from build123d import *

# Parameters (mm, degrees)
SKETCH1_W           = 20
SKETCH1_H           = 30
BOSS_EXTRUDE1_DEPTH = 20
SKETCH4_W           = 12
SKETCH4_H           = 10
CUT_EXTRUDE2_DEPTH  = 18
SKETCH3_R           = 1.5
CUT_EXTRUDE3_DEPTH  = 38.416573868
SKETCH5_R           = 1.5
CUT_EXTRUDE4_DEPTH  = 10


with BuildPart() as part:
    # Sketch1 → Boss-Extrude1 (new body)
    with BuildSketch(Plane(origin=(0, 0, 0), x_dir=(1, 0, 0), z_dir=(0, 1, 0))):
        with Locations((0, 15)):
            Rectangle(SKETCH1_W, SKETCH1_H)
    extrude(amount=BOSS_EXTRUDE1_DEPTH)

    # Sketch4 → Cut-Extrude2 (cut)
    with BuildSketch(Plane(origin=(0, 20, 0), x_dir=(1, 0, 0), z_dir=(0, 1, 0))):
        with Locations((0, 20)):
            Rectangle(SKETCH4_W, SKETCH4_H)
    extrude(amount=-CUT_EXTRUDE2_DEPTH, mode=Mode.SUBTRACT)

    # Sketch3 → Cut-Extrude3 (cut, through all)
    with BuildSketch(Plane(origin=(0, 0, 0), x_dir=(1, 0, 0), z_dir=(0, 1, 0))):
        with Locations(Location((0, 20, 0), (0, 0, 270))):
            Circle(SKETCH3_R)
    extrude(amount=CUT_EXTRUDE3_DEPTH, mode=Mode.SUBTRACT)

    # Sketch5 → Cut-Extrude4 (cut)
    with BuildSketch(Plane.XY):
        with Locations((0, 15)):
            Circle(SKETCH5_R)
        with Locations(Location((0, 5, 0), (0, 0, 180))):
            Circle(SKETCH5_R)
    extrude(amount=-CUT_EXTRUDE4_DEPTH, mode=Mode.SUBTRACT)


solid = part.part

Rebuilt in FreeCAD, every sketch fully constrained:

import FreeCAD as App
import Part
import Sketcher
Q = App.Units.Quantity

doc = App.newDocument("Part")
body = doc.addObject("PartDesign::Body", "Body")

# Sketch on XZ plane
sketch1 = body.newObject("Sketcher::SketchObject", "Sketch")
sketch1.AttachmentSupport = (doc.getObject("XZ_Plane"), [""])
sketch1.MapMode = "FlatFace"
sketch1.addGeometry(Part.LineSegment(App.Vector(-10, -30, 0), App.Vector(-10, 0, 0)), False)
sketch1.addGeometry(Part.LineSegment(App.Vector(-10, 0, 0), App.Vector(10, 0, 0)), False)
sketch1.addGeometry(Part.LineSegment(App.Vector(10, 0, 0), App.Vector(10, -30, 0)), False)
sketch1.addGeometry(Part.LineSegment(App.Vector(10, -30, 0), App.Vector(-10, -30, 0)), False)
sketch1.addConstraint(Sketcher.Constraint("Coincident", 0, 2, 1, 1))
sketch1.addConstraint(Sketcher.Constraint("Coincident", 1, 2, 2, 1))
sketch1.addConstraint(Sketcher.Constraint("Coincident", 2, 2, 3, 1))
sketch1.addConstraint(Sketcher.Constraint("Coincident", 3, 2, 0, 1))
sketch1.addConstraint(Sketcher.Constraint("Vertical", 0))
sketch1.addConstraint(Sketcher.Constraint("Horizontal", 1))
sketch1.addConstraint(Sketcher.Constraint("Vertical", 2))
sketch1.addConstraint(Sketcher.Constraint("Horizontal", 3))
sketch1.addConstraint(Sketcher.Constraint("Symmetric", 0, 2, 1, 2, -1, 1))
sketch1.addConstraint(Sketcher.Constraint("DistanceX", 1, 1, 1, 2, Q("20 mm")))
sketch1.addConstraint(Sketcher.Constraint("DistanceY", 0, 1, 0, 2, Q("30 mm")))
pad1 = body.newObject("PartDesign::Pad", "Pad")
pad1.Profile = sketch1
pad1.Length = 20
pad1.Reversed = True

# Sketch on XZ plane
sketch2 = body.newObject("Sketcher::SketchObject", "Sketch001")
sketch2.AttachmentSupport = (doc.getObject("XZ_Plane"), [""])
sketch2.MapMode = "FlatFace"
sketch2.AttachmentOffset = App.Placement(App.Vector(0, 0, -20), App.Rotation())
sketch2.addGeometry(Part.LineSegment(App.Vector(-6, -25, 0), App.Vector(-6, -15, 0)), False)
sketch2.addGeometry(Part.LineSegment(App.Vector(-6, -15, 0), App.Vector(6, -15, 0)), False)
sketch2.addGeometry(Part.LineSegment(App.Vector(6, -15, 0), App.Vector(6, -25, 0)), False)
sketch2.addGeometry(Part.LineSegment(App.Vector(6, -25, 0), App.Vector(-6, -25, 0)), False)
sketch2.addConstraint(Sketcher.Constraint("Coincident", 0, 2, 1, 1))
sketch2.addConstraint(Sketcher.Constraint("Coincident", 1, 2, 2, 1))
sketch2.addConstraint(Sketcher.Constraint("Coincident", 2, 2, 3, 1))
sketch2.addConstraint(Sketcher.Constraint("Coincident", 3, 2, 0, 1))
sketch2.addConstraint(Sketcher.Constraint("Vertical", 0))
sketch2.addConstraint(Sketcher.Constraint("Horizontal", 1))
sketch2.addConstraint(Sketcher.Constraint("Vertical", 2))
sketch2.addConstraint(Sketcher.Constraint("Horizontal", 3))
sketch2.addConstraint(Sketcher.Constraint("DistanceX", 1, 1, 1, 2, Q("12 mm")))
sketch2.addConstraint(Sketcher.Constraint("DistanceY", 0, 1, 0, 2, Q("10 mm")))
sketch2.addConstraint(Sketcher.Constraint("DistanceX", 0, 2, -1, 1, Q("6 mm")))
sketch2.addConstraint(Sketcher.Constraint("DistanceY", 0, 2, -1, 1, Q("15 mm")))
pocket1 = body.newObject("PartDesign::Pocket", "Pocket")
pocket1.Profile = sketch2
pocket1.Length = 18
pocket1.Reversed = True

# Sketch on XZ plane
sketch3 = body.newObject("Sketcher::SketchObject", "Sketch002")
sketch3.AttachmentSupport = (doc.getObject("XZ_Plane"), [""])
sketch3.MapMode = "FlatFace"
sketch3.addGeometry(Part.Circle(App.Vector(0, -20, 0), App.Vector(0, 0, 1), 1.5), False)
sketch3.addConstraint(Sketcher.Constraint("PointOnObject", 0, 3, -2))
sketch3.addConstraint(Sketcher.Constraint("Diameter", 0, Q("3 mm")))
sketch3.addConstraint(Sketcher.Constraint("DistanceY", 0, 3, -1, 1, Q("20 mm")))
pocket2 = body.newObject("PartDesign::Pocket", "Pocket001")
pocket2.Profile = sketch3
pocket2.Type = "ThroughAll"

# Sketch on XY plane
sketch4 = body.newObject("Sketcher::SketchObject", "Sketch003")
sketch4.AttachmentSupport = (doc.getObject("XY_Plane"), [""])
sketch4.MapMode = "FlatFace"
sketch4.addGeometry(Part.Circle(App.Vector(0, 15, 0), App.Vector(0, 0, 1), 1.5), False)
sketch4.addGeometry(Part.Circle(App.Vector(0, 5, 0), App.Vector(0, 0, 1), 1.5), False)
sketch4.addConstraint(Sketcher.Constraint("Equal", 0, 1))
sketch4.addConstraint(Sketcher.Constraint("PointOnObject", 0, 3, -2))
sketch4.addConstraint(Sketcher.Constraint("PointOnObject", 1, 3, -2))
sketch4.addConstraint(Sketcher.Constraint("Diameter", 0, Q("3 mm")))
sketch4.addConstraint(Sketcher.Constraint("DistanceY", -1, 1, 0, 3, Q("15 mm")))
sketch4.addConstraint(Sketcher.Constraint("DistanceY", -1, 1, 1, 3, Q("5 mm")))
pocket3 = body.newObject("PartDesign::Pocket", "Pocket002")
pocket3.Profile = sketch4
pocket3.Length = 10

doc.recompute()
